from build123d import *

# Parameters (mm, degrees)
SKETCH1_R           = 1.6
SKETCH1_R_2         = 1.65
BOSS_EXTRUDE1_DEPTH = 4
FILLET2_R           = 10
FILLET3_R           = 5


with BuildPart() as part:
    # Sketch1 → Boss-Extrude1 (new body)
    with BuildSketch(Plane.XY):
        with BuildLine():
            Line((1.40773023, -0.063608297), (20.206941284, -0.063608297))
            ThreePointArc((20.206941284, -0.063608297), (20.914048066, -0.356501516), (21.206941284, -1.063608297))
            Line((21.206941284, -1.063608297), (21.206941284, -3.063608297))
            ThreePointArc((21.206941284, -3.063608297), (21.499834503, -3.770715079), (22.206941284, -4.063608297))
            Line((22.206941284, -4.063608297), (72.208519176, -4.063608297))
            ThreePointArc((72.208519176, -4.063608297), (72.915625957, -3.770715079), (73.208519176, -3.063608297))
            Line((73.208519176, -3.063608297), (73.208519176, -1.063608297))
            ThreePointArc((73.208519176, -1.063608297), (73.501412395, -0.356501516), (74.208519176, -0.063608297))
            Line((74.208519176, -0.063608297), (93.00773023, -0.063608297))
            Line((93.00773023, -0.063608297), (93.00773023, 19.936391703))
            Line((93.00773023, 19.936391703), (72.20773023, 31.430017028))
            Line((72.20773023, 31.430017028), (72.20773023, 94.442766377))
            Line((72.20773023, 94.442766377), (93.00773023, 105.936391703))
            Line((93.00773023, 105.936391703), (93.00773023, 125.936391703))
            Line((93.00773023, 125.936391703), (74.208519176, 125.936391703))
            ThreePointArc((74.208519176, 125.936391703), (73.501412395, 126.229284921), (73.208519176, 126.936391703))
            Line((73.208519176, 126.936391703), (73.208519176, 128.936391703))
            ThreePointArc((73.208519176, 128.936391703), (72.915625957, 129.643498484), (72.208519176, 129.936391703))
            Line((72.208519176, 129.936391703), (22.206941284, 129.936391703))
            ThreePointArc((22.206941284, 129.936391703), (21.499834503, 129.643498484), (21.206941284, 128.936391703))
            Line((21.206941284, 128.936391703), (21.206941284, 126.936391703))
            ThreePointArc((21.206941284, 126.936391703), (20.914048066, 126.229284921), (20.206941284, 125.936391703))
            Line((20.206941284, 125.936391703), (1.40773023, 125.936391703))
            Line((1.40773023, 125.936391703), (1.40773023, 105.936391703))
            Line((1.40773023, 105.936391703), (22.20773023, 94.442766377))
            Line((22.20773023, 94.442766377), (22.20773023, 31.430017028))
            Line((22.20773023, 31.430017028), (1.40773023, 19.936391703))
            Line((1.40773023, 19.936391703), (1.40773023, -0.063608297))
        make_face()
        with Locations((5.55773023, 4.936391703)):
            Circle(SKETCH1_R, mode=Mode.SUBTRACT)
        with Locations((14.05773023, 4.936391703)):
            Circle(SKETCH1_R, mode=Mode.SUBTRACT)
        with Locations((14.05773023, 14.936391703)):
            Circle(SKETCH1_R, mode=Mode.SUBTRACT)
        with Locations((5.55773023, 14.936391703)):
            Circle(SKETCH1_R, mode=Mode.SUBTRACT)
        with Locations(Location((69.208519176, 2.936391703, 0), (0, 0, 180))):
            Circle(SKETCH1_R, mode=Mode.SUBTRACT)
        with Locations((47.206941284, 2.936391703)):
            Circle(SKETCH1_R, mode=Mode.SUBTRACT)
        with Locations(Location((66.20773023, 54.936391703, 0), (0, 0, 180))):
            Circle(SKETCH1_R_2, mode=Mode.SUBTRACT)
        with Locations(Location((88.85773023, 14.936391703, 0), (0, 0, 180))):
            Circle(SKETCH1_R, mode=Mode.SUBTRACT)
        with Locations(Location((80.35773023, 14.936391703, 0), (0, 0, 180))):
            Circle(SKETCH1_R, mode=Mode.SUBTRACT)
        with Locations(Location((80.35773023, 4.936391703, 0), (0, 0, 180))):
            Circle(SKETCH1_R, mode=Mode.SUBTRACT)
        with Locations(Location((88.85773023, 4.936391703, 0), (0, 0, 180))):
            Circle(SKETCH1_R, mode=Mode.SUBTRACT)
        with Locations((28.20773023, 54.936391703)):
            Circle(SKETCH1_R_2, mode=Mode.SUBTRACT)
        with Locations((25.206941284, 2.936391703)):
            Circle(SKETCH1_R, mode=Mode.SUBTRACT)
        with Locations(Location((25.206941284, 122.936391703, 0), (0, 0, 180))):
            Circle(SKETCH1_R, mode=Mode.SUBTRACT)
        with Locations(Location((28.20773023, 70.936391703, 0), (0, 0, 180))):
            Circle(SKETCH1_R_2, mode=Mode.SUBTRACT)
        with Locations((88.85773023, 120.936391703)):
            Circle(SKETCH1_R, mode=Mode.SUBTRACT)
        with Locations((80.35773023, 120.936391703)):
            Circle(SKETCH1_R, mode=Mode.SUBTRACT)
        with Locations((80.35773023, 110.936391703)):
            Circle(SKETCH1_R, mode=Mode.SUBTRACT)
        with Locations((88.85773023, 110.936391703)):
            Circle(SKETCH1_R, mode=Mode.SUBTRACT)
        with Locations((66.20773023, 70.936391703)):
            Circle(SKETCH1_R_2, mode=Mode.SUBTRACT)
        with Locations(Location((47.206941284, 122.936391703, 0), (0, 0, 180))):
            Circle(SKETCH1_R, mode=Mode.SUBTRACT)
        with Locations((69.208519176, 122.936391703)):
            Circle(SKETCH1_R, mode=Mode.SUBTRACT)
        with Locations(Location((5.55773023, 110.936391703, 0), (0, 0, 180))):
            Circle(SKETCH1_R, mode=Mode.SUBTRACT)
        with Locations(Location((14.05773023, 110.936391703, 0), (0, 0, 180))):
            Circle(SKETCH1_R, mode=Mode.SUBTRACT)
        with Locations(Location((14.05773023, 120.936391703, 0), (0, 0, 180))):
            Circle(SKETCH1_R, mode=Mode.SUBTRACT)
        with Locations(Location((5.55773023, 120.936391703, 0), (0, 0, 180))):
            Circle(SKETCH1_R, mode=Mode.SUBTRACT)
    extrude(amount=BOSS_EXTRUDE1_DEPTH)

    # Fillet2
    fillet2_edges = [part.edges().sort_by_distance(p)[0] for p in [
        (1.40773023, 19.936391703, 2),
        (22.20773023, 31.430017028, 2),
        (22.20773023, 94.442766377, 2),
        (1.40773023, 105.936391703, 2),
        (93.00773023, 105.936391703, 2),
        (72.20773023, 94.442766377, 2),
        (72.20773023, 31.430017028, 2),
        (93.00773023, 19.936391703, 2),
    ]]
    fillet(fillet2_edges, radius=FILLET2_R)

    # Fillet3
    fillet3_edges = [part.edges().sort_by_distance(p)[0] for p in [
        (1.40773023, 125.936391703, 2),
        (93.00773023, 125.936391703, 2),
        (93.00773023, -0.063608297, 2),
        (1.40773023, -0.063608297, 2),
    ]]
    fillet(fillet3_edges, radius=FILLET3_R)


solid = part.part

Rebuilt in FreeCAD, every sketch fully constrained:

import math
import FreeCAD as App
import Part
import Sketcher

V = App.Vector


def edges_at(feature, points):
    """Names of the edges that pass closest to the given points."""
    edges = feature.Shape.Edges
    near = lambda p: min(range(len(edges)), key=lambda i: edges[i].distToShape(Part.Vertex(*p))[0])
    return sorted({f"Edge{near(p) + 1}" for p in points})

doc = App.newDocument("Part")
body = doc.addObject("PartDesign::Body", "Body")

sketch1 = body.newObject("Sketcher::SketchObject", "Sketch")
sketch1.AttachmentSupport = (doc.getObject("XY_Plane"), [""])
sketch1.MapMode = "FlatFace"
sketch1.addGeometry([
    Part.LineSegment(V(1.40773, -0.063608, 0), V(20.206941, -0.063608, 0)),
    Part.ArcOfCircle(Part.Circle(V(20.206941, -1.063608, 0), V(0, 0, 1), 1), math.radians(0), math.radians(90)),
    Part.LineSegment(V(21.206941, -1.063608, 0), V(21.206941, -3.063608, 0)),
    Part.ArcOfCircle(Part.Circle(V(22.206941, -3.063608, 0), V(0, 0, 1), 1), math.radians(180), math.radians(270)),
    Part.LineSegment(V(22.206941, -4.063608, 0), V(72.208519, -4.063608, 0)),
    Part.ArcOfCircle(Part.Circle(V(72.208519, -3.063608, 0), V(0, 0, 1), 1), math.radians(-90), math.radians(0)),
    Part.LineSegment(V(73.208519, -3.063608, 0), V(73.208519, -1.063608, 0)),
    Part.ArcOfCircle(Part.Circle(V(74.208519, -1.063608, 0), V(0, 0, 1), 1), math.radians(90), math.radians(180)),
    Part.LineSegment(V(74.208519, -0.063608, 0), V(93.00773, -0.063608, 0)),
    Part.LineSegment(V(93.00773, -0.063608, 0), V(93.00773, 19.936392, 0)),
    Part.LineSegment(V(93.00773, 19.936392, 0), V(72.20773, 31.430017, 0)),
    Part.LineSegment(V(72.20773, 31.430017, 0), V(72.20773, 94.442766, 0)),
    Part.LineSegment(V(72.20773, 94.442766, 0), V(93.00773, 105.936392, 0)),
    Part.LineSegment(V(93.00773, 105.936392, 0), V(93.00773, 125.936392, 0)),
    Part.LineSegment(V(93.00773, 125.936392, 0), V(74.208519, 125.936392, 0)),
    Part.ArcOfCircle(Part.Circle(V(74.208519, 126.936392, 0), V(0, 0, 1), 1), math.radians(180), math.radians(270)),
    Part.LineSegment(V(73.208519, 126.936392, 0), V(73.208519, 128.936392, 0)),
    Part.ArcOfCircle(Part.Circle(V(72.208519, 128.936392, 0), V(0, 0, 1), 1), math.radians(0), math.radians(90)),
    Part.LineSegment(V(72.208519, 129.936392, 0), V(22.206941, 129.936392, 0)),
    Part.ArcOfCircle(Part.Circle(V(22.206941, 128.936392, 0), V(0, 0, 1), 1), math.radians(90), math.radians(180)),
    Part.LineSegment(V(21.206941, 128.936392, 0), V(21.206941, 126.936392, 0)),
    Part.ArcOfCircle(Part.Circle(V(20.206941, 126.936392, 0), V(0, 0, 1), 1), math.radians(-90), math.radians(0)),
    Part.LineSegment(V(20.206941, 125.936392, 0), V(1.40773, 125.936392, 0)),
    Part.LineSegment(V(1.40773, 125.936392, 0), V(1.40773, 105.936392, 0)),
    Part.LineSegment(V(1.40773, 105.936392, 0), V(22.20773, 94.442766, 0)),
    Part.LineSegment(V(22.20773, 94.442766, 0), V(22.20773, 31.430017, 0)),
    Part.LineSegment(V(22.20773, 31.430017, 0), V(1.40773, 19.936392, 0)),
    Part.LineSegment(V(1.40773, 19.936392, 0), V(1.40773, -0.063608, 0)),
    Part.Circle(V(5.55773, 4.936392, 0), V(0, 0, 1), 1.6),
    Part.Circle(V(14.05773, 4.936392, 0), V(0, 0, 1), 1.6),
    Part.Circle(V(5.55773, 14.936392, 0), V(0, 0, 1), 1.6),
    Part.Circle(V(14.05773, 14.936392, 0), V(0, 0, 1), 1.6),
    Part.Circle(V(25.206941, 2.936392, 0), V(0, 0, 1), 1.6),
    Part.Circle(V(47.206941, 2.936392, 0), V(0, 0, 1), 1.6),
    Part.Circle(V(28.20773, 54.936392, 0), V(0, 0, 1), 1.65),
    Part.Circle(V(69.208519, 2.936392, 0), V(0, 0, 1), 1.6),
    Part.Circle(V(80.35773, 4.936392, 0), V(0, 0, 1), 1.6),
    Part.Circle(V(88.85773, 4.936392, 0), V(0, 0, 1), 1.6),
    Part.Circle(V(80.35773, 14.936392, 0), V(0, 0, 1), 1.6),
    Part.Circle(V(88.85773, 14.936392, 0), V(0, 0, 1), 1.6),
    Part.Circle(V(66.20773, 54.936392, 0), V(0, 0, 1), 1.65),
    Part.Circle(V(28.20773, 70.936392, 0), V(0, 0, 1), 1.65),
    Part.Circle(V(5.55773, 110.936392, 0), V(0, 0, 1), 1.6),
    Part.Circle(V(14.05773, 110.936392, 0), V(0, 0, 1), 1.6),
    Part.Circle(V(5.55773, 120.936392, 0), V(0, 0, 1), 1.6),
    Part.Circle(V(14.05773, 120.936392, 0), V(0, 0, 1), 1.6),
    Part.Circle(V(25.206941, 122.936392, 0), V(0, 0, 1), 1.6),
    Part.Circle(V(47.206941, 122.936392, 0), V(0, 0, 1), 1.6),
    Part.Circle(V(66.20773, 70.936392, 0), V(0, 0, 1), 1.65),
    Part.Circle(V(69.208519, 122.936392, 0), V(0, 0, 1), 1.6),
    Part.Circle(V(80.35773, 110.936392, 0), V(0, 0, 1), 1.6),
    Part.Circle(V(88.85773, 110.936392, 0), V(0, 0, 1), 1.6),
    Part.Circle(V(80.35773, 120.936392, 0), V(0, 0, 1), 1.6),
    Part.Circle(V(88.85773, 120.936392, 0), V(0, 0, 1), 1.6),
], False)
sketch1.addConstraint([
    Sketcher.Constraint("Tangent", 0, 2, 1, 2),
    Sketcher.Constraint("Tangent", 1, 1, 2, 1),
    Sketcher.Constraint("Tangent", 2, 2, 3, 1),
    Sketcher.Constraint("Tangent", 3, 2, 4, 1),
    Sketcher.Constraint("Tangent", 4, 2, 5, 1),
    Sketcher.Constraint("Tangent", 5, 2, 6, 1),
    Sketcher.Constraint("Tangent", 6, 2, 7, 2),
    Sketcher.Constraint("Tangent", 7, 1, 8, 1),
    Sketcher.Constraint("Coincident", 8, 2, 9, 1),
    Sketcher.Constraint("Coincident", 9, 2, 10, 1),
    Sketcher.Constraint("Coincident", 10, 2, 11, 1),
    Sketcher.Constraint("Coincident", 11, 2, 12, 1),
    Sketcher.Constraint("Coincident", 12, 2, 13, 1),
    Sketcher.Constraint("Coincident", 13, 2, 14, 1),
    Sketcher.Constraint("Tangent", 14, 2, 15, 2),
    Sketcher.Constraint("Tangent", 15, 1, 16, 1),
    Sketcher.Constraint("Tangent", 16, 2, 17, 1),
    Sketcher.Constraint("Tangent", 17, 2, 18, 1),
    Sketcher.Constraint("Tangent", 18, 2, 19, 1),
    Sketcher.Constraint("Tangent", 19, 2, 20, 1),
    Sketcher.Constraint("Tangent", 20, 2, 21, 2),
    Sketcher.Constraint("Tangent", 21, 1, 22, 1),
    Sketcher.Constraint("Coincident", 22, 2, 23, 1),
    Sketcher.Constraint("Coincident", 23, 2, 24, 1),
    Sketcher.Constraint("Coincident", 24, 2, 25, 1),
    Sketcher.Constraint("Coincident", 25, 2, 26, 1),
    Sketcher.Constraint("Coincident", 26, 2, 27, 1),
    Sketcher.Constraint("Coincident", 27, 2, 0, 1),
    Sketcher.Constraint("Horizontal", 0),
    Sketcher.Constraint("Vertical", 2),
    Sketcher.Constraint("Horizontal", 4),
    Sketcher.Constraint("Vertical", 6),
    Sketcher.Constraint("Horizontal", 8),
    Sketcher.Constraint("Vertical", 9),
    Sketcher.Constraint("Vertical", 11),
    Sketcher.Constraint("Vertical", 13),
    Sketcher.Constraint("Horizontal", 14),
    Sketcher.Constraint("Vertical", 16),
    Sketcher.Constraint("Horizontal", 18),
    Sketcher.Constraint("Vertical", 20),
    Sketcher.Constraint("Horizontal", 22),
    Sketcher.Constraint("Vertical", 23),
    Sketcher.Constraint("Vertical", 25),
    Sketcher.Constraint("Vertical", 27),
    Sketcher.Constraint("Equal", 1, 3),
    Sketcher.Constraint("Equal", 3, 5),
    Sketcher.Constraint("Equal", 5, 7),
    Sketcher.Constraint("Equal", 7, 15),
    Sketcher.Constraint("Equal", 15, 17),
    Sketcher.Constraint("Equal", 17, 19),
    Sketcher.Constraint("Equal", 19, 21),
    Sketcher.Constraint("Equal", 28, 29),
    Sketcher.Constraint("Equal", 29, 30),
    Sketcher.Constraint("Equal", 30, 31),
    Sketcher.Constraint("Equal", 31, 32),
    Sketcher.Constraint("Equal", 32, 33),
    Sketcher.Constraint("Equal", 33, 35),
    Sketcher.Constraint("Equal", 35, 36),
    Sketcher.Constraint("Equal", 36, 37),
    Sketcher.Constraint("Equal", 37, 38),
    Sketcher.Constraint("Equal", 38, 39),
    Sketcher.Constraint("Equal", 34, 40),
    Sketcher.Constraint("Equal", 40, 41),
    Sketcher.Constraint("Equal", 39, 42),
    Sketcher.Constraint("Equal", 42, 43),
    Sketcher.Constraint("Equal", 43, 44),
    Sketcher.Constraint("Equal", 44, 45),
    Sketcher.Constraint("Equal", 45, 46),
    Sketcher.Constraint("Equal", 46, 47),
    Sketcher.Constraint("Equal", 41, 48),
    Sketcher.Constraint("Equal", 47, 49),
    Sketcher.Constraint("Equal", 49, 50),
    Sketcher.Constraint("Equal", 50, 51),
    Sketcher.Constraint("Equal", 51, 52),
    Sketcher.Constraint("Equal", 52, 53),
    Sketcher.Constraint("Parallel", 10, 24),
    Sketcher.Constraint("Parallel", 12, 26),
    Sketcher.Constraint("Horizontal", 1, 3, 7, 3),
    Sketcher.Constraint("Horizontal", 15, 3, 21, 3),
    Sketcher.Constraint("Horizontal", 28, 3, 29, 3),
    Sketcher.Constraint("Horizontal", 30, 3, 31, 3),
    Sketcher.Constraint("Horizontal", 32, 3, 33, 3),
    Sketcher.Constraint("Horizontal", 33, 3, 35, 3),
    Sketcher.Constraint("Horizontal", 29, 3, 36, 3),
    Sketcher.Constraint("Horizontal", 36, 3, 37, 3),
    Sketcher.Constraint("Horizontal", 31, 3, 38, 3),
    Sketcher.Constraint("Horizontal", 38, 3, 39, 3),
    Sketcher.Constraint("Horizontal", 34, 3, 40, 3),
    Sketcher.Constraint("Horizontal", 42, 3, 43, 3),
    Sketcher.Constraint("Horizontal", 44, 3, 45, 3),
    Sketcher.Constraint("Horizontal", 46, 3, 47, 3),
    Sketcher.Constraint("Horizontal", 41, 3, 48, 3),
    Sketcher.Constraint("Horizontal", 47, 3, 49, 3),
    Sketcher.Constraint("Horizontal", 43, 3, 50, 3),
    Sketcher.Constraint("Horizontal", 50, 3, 51, 3),
    Sketcher.Constraint("Horizontal", 45, 3, 52, 3),
    Sketcher.Constraint("Horizontal", 52, 3, 53, 3),
    Sketcher.Constraint("Horizontal", 12, 2, 23, 2),
    Sketcher.Constraint("Horizontal", 11, 2, 24, 2),
    Sketcher.Constraint("Horizontal", 10, 2, 25, 2),
    Sketcher.Constraint("Horizontal", 9, 2, 26, 2),
    Sketcher.Constraint("Vertical", 7, 3, 15, 3),
    Sketcher.Constraint("Vertical", 3, 3, 19, 3),
    Sketcher.Constraint("Vertical", 28, 3, 30, 3),
    Sketcher.Constraint("Vertical", 29, 3, 31, 3),
    Sketcher.Constraint("Vertical", 36, 3, 38, 3),
    Sketcher.Constraint("Vertical", 37, 3, 39, 3),
    Sketcher.Constraint("Vertical", 34, 3, 41, 3),
    Sketcher.Constraint("Vertical", 30, 3, 42, 3),
    Sketcher.Constraint("Vertical", 31, 3, 43, 3),
    Sketcher.Constraint("Vertical", 42, 3, 44, 3),
    Sketcher.Constraint("Vertical", 43, 3, 45, 3),
    Sketcher.Constraint("Vertical", 32, 3, 46, 3),
    Sketcher.Constraint("Vertical", 33, 3, 47, 3),
    Sketcher.Constraint("Vertical", 40, 3, 48, 3),
    Sketcher.Constraint("Vertical", 35, 3, 49, 3),
    Sketcher.Constraint("Vertical", 38, 3, 50, 3),
    Sketcher.Constraint("Vertical", 39, 3, 51, 3),
    Sketcher.Constraint("Vertical", 50, 3, 52, 3),
    Sketcher.Constraint("Vertical", 51, 3, 53, 3),
    Sketcher.Constraint("Vertical", 9, 2, 12, 2),
    Sketcher.Constraint("Vertical", 23, 2, 26, 2),
    Sketcher.Constraint("Equal", 0, 8),
    Sketcher.Constraint("Equal", 9, 13),
    Sketcher.Constraint("Equal", 6, 16),
    Sketcher.Constraint("Radius", 1, 1.0),
    Sketcher.Constraint("Diameter", 28, 3.2),
    Sketcher.Constraint("Diameter", 34, 3.3),
    Sketcher.Constraint("DistanceY", 2, 2, 2, 1, 2.0),
    Sketcher.Constraint("DistanceY", 9, 1, 9, 2, 20.0),
    Sketcher.Constraint("DistanceX", 0, 1, 0, 2, 18.799211),
    Sketcher.Constraint("DistanceY", 11, 1, 11, 2, 63.012749),
    Sketcher.Constraint("Distance", 10, 23.764331),
    Sketcher.Constraint("DistanceX", 4, 1, 4, 2, 50.001578),
    Sketcher.Constraint("DistanceX", -1, 1, 1, 3, 20.206941),
    Sketcher.Constraint("DistanceY", 1, 3, -1, 1, 1.063608),
    Sketcher.Constraint("DistanceY", -1, 1, 15, 3, 126.936392),
    Sketcher.Constraint("DistanceX", -1, 1, 28, 3, 5.55773),
    Sketcher.Constraint("DistanceY", -1, 1, 28, 3, 4.936392),
    Sketcher.Constraint("DistanceX", -1, 1, 29, 3, 14.05773),
    Sketcher.Constraint("DistanceY", -1, 1, 30, 3, 14.936392),
    Sketcher.Constraint("DistanceX", -1, 1, 32, 3, 25.206941),
    Sketcher.Constraint("DistanceY", -1, 1, 32, 3, 2.936392),
    Sketcher.Constraint("DistanceX", -1, 1, 33, 3, 47.206941),
    Sketcher.Constraint("DistanceX", -1, 1, 34, 3, 28.20773),
    Sketcher.Constraint("DistanceY", -1, 1, 34, 3, 54.936392),
    Sketcher.Constraint("DistanceX", -1, 1, 35, 3, 69.208519),
    Sketcher.Constraint("DistanceX", -1, 1, 36, 3, 80.35773),
    Sketcher.Constraint("DistanceX", -1, 1, 37, 3, 88.85773),
    Sketcher.Constraint("DistanceX", -1, 1, 40, 3, 66.20773),
    Sketcher.Constraint("DistanceY", -1, 1, 41, 3, 70.936392),
    Sketcher.Constraint("DistanceY", -1, 1, 42, 3, 110.936392),
    Sketcher.Constraint("DistanceY", -1, 1, 44, 3, 120.936392),
    Sketcher.Constraint("DistanceY", -1, 1, 46, 3, 122.936392),
])
pad1 = body.newObject("PartDesign::Pad", "Pad")
pad1.Profile = sketch1
pad1.Length = 4
doc.recompute()

fillet = body.newObject("PartDesign::Fillet", "Fillet")
fillet.Base = (pad1, edges_at(pad1, [
    (1.408, 19.936, 2),
    (22.208, 31.43, 2),
    (22.208, 94.443, 2),
    (1.408, 105.936, 2),
    (93.008, 105.936, 2),
    (72.208, 94.443, 2),
    (72.208, 31.43, 2),
    (93.008, 19.936, 2),
]))
fillet.Radius = 10
doc.recompute()

fillet2 = body.newObject("PartDesign::Fillet", "Fillet001")
fillet2.Base = (fillet, edges_at(fillet, [
    (1.408, 125.936, 2),
    (93.008, 125.936, 2),
    (93.008, -0.064, 2),
    (1.408, -0.064, 2),
]))
fillet2.Radius = 5

doc.recompute()
